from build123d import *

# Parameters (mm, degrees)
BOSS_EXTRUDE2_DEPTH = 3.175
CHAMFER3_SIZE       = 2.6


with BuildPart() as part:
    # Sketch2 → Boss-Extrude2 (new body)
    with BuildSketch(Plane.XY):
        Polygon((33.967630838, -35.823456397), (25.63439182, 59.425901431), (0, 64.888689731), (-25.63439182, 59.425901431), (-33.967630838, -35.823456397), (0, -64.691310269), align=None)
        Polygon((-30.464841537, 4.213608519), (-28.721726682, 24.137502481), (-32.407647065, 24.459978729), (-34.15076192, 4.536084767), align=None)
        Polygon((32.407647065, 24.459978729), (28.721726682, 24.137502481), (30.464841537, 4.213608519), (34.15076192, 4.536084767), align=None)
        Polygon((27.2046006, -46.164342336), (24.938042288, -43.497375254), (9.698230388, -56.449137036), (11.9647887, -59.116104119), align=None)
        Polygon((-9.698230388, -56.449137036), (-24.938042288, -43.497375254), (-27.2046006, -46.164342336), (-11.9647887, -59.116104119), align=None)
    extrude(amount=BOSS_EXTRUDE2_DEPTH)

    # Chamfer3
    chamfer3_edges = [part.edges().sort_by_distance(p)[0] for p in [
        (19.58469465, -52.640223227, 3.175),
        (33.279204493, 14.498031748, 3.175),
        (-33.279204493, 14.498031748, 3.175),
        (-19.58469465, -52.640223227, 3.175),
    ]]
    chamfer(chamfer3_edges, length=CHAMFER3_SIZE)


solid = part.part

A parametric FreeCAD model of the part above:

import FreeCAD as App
import Part
import Sketcher

V = App.Vector
Q = App.Units.Quantity


def edges_at(feature, points):
    """Names of the edges that pass closest to the given points."""
    edges = feature.Shape.Edges
    near = lambda p: min(range(len(edges)), key=lambda i: edges[i].distToShape(Part.Vertex(*p))[0])
    return sorted({f"Edge{near(p) + 1}" for p in points})


def add_polygon(sketch, points):
    """Adds a closed chain of lines whose ends are joined by coincident constraints."""
    first, n = sketch.GeometryCount, len(points)
    for a, b in zip(points, points[1:] + points[:1]):
        sketch.addGeometry(Part.LineSegment(App.Vector(*a, 0), App.Vector(*b, 0)), False)
    for i in range(n):
        sketch.addConstraint(Sketcher.Constraint("Coincident", first + i, 2, first + (i + 1) % n, 1))

doc = App.newDocument("Part")
body = doc.addObject("PartDesign::Body", "Body")

# Sketch on XY plane
sketch1 = body.newObject("Sketcher::SketchObject", "Sketch")
sketch1.AttachmentSupport = (doc.getObject("XY_Plane"), [""])
sketch1.MapMode = "FlatFace"
add_polygon(sketch1, [(33.967631, -35.823456), (30.464842, 4.213609), (34.150762, 4.536085), (32.407647, 24.459979), (28.721727, 24.137502), (25.634392, 59.425901), (0, 64.88869), (-25.634392, 59.425901), (-28.721727, 24.137502), (-32.407647, 24.459979), (-34.150762, 4.536085), (-30.464842, 4.213609), (-33.967631, -35.823456), (-24.938042, -43.497375), (-27.204601, -46.164342), (-11.964789, -59.116104), (-9.69823, -56.449137), (0, -64.69131), (9.69823, -56.449137), (11.964789, -59.116104), (27.204601, -46.164342), (24.938042, -43.497375)])  # lines 0-21
sketch1.addConstraint(Sketcher.Constraint("Symmetric", 4, 2, 6, 2, -2))
sketch1.addConstraint(Sketcher.Constraint("Symmetric", 3, 2, 7, 2, -2))
sketch1.addConstraint(Sketcher.Constraint("Symmetric", 2, 2, 8, 2, -2))
sketch1.addConstraint(Sketcher.Constraint("Symmetric", 1, 2, 9, 2, -2))
sketch1.addConstraint(Sketcher.Constraint("Symmetric", 0, 2, 10, 2, -2))
sketch1.addConstraint(Sketcher.Constraint("Symmetric", 15, 2, 17, 2, -2))
sketch1.addConstraint(Sketcher.Constraint("Symmetric", 14, 2, 18, 2, -2))
sketch1.addConstraint(Sketcher.Constraint("Symmetric", 13, 2, 19, 2, -2))
sketch1.addConstraint(Sketcher.Constraint("Symmetric", 12, 2, 20, 2, -2))
sketch1.addConstraint(Sketcher.Constraint("Symmetric", 11, 2, 21, 2, -2))
sketch1.addConstraint(Sketcher.Constraint("PointOnObject", 5, 2, -2))
sketch1.addConstraint(Sketcher.Constraint("PointOnObject", 16, 2, -2))
sketch1.addConstraint(Sketcher.Constraint("Perpendicular", 0, 1))
sketch1.addConstraint(Sketcher.Constraint("Perpendicular", 1, 2))
sketch1.addConstraint(Sketcher.Constraint("Perpendicular", 2, 3))
sketch1.addConstraint(Sketcher.Constraint("Perpendicular", 3, 4))
sketch1.addConstraint(Sketcher.Constraint("Perpendicular", 12, 13))
sketch1.addConstraint(Sketcher.Constraint("Perpendicular", 13, 14))
sketch1.addConstraint(Sketcher.Constraint("Perpendicular", 14, 15))
sketch1.addConstraint(Sketcher.Constraint("Perpendicular", 15, 16))
sketch1.addConstraint(Sketcher.Constraint("Equal", 1, 3))
sketch1.addConstraint(Sketcher.Constraint("Equal", 9, 14))
sketch1.addConstraint(Sketcher.Constraint("Equal", 13, 15))
sketch1.addConstraint(Sketcher.Constraint("Angle", 0, Q("95 deg")))
sketch1.addConstraint(Sketcher.Constraint("Distance", 2, Q("20 mm")))
sketch1.addConstraint(Sketcher.Constraint("Distance", 1, Q("3.7 mm")))
sketch1.addConstraint(Sketcher.Constraint("Distance", 13, Q("3.5 mm")))
sketch1.addConstraint(Sketcher.Constraint("Angle", 5, Q("167.97 deg")))
sketch1.addConstraint(Sketcher.Constraint("Angle", 12, Q("-40.36 deg")))
sketch1.addConstraint(Sketcher.Constraint("Distance", 0, Q("40.19 mm")))
sketch1.addConstraint(Sketcher.Constraint("Distance", 5, Q("26.21 mm")))
sketch1.addConstraint(Sketcher.Constraint("Distance", 12, Q("11.85 mm")))
sketch1.addConstraint(Sketcher.Constraint("DistanceY", -1, 1, 4, 2, Q("59.425901 mm")))
sketch1.addConstraint(Sketcher.Constraint("DistanceX", 13, 2, -1, 1, Q("27.204601 mm")))
pad1 = body.newObject("PartDesign::Pad", "Pad")
pad1.Profile = sketch1
pad1.Length = 3.175
doc.recompute()

chamfer = body.newObject("PartDesign::Chamfer", "Chamfer")
chamfer.Base = (pad1, edges_at(pad1, [
    (19.585, -52.64, 3.175),
    (33.279, 14.498, 3.175),
    (-33.279, 14.498, 3.175),
    (-19.585, -52.64, 3.175),
]))
chamfer.Size = 2.6

doc.recompute()
